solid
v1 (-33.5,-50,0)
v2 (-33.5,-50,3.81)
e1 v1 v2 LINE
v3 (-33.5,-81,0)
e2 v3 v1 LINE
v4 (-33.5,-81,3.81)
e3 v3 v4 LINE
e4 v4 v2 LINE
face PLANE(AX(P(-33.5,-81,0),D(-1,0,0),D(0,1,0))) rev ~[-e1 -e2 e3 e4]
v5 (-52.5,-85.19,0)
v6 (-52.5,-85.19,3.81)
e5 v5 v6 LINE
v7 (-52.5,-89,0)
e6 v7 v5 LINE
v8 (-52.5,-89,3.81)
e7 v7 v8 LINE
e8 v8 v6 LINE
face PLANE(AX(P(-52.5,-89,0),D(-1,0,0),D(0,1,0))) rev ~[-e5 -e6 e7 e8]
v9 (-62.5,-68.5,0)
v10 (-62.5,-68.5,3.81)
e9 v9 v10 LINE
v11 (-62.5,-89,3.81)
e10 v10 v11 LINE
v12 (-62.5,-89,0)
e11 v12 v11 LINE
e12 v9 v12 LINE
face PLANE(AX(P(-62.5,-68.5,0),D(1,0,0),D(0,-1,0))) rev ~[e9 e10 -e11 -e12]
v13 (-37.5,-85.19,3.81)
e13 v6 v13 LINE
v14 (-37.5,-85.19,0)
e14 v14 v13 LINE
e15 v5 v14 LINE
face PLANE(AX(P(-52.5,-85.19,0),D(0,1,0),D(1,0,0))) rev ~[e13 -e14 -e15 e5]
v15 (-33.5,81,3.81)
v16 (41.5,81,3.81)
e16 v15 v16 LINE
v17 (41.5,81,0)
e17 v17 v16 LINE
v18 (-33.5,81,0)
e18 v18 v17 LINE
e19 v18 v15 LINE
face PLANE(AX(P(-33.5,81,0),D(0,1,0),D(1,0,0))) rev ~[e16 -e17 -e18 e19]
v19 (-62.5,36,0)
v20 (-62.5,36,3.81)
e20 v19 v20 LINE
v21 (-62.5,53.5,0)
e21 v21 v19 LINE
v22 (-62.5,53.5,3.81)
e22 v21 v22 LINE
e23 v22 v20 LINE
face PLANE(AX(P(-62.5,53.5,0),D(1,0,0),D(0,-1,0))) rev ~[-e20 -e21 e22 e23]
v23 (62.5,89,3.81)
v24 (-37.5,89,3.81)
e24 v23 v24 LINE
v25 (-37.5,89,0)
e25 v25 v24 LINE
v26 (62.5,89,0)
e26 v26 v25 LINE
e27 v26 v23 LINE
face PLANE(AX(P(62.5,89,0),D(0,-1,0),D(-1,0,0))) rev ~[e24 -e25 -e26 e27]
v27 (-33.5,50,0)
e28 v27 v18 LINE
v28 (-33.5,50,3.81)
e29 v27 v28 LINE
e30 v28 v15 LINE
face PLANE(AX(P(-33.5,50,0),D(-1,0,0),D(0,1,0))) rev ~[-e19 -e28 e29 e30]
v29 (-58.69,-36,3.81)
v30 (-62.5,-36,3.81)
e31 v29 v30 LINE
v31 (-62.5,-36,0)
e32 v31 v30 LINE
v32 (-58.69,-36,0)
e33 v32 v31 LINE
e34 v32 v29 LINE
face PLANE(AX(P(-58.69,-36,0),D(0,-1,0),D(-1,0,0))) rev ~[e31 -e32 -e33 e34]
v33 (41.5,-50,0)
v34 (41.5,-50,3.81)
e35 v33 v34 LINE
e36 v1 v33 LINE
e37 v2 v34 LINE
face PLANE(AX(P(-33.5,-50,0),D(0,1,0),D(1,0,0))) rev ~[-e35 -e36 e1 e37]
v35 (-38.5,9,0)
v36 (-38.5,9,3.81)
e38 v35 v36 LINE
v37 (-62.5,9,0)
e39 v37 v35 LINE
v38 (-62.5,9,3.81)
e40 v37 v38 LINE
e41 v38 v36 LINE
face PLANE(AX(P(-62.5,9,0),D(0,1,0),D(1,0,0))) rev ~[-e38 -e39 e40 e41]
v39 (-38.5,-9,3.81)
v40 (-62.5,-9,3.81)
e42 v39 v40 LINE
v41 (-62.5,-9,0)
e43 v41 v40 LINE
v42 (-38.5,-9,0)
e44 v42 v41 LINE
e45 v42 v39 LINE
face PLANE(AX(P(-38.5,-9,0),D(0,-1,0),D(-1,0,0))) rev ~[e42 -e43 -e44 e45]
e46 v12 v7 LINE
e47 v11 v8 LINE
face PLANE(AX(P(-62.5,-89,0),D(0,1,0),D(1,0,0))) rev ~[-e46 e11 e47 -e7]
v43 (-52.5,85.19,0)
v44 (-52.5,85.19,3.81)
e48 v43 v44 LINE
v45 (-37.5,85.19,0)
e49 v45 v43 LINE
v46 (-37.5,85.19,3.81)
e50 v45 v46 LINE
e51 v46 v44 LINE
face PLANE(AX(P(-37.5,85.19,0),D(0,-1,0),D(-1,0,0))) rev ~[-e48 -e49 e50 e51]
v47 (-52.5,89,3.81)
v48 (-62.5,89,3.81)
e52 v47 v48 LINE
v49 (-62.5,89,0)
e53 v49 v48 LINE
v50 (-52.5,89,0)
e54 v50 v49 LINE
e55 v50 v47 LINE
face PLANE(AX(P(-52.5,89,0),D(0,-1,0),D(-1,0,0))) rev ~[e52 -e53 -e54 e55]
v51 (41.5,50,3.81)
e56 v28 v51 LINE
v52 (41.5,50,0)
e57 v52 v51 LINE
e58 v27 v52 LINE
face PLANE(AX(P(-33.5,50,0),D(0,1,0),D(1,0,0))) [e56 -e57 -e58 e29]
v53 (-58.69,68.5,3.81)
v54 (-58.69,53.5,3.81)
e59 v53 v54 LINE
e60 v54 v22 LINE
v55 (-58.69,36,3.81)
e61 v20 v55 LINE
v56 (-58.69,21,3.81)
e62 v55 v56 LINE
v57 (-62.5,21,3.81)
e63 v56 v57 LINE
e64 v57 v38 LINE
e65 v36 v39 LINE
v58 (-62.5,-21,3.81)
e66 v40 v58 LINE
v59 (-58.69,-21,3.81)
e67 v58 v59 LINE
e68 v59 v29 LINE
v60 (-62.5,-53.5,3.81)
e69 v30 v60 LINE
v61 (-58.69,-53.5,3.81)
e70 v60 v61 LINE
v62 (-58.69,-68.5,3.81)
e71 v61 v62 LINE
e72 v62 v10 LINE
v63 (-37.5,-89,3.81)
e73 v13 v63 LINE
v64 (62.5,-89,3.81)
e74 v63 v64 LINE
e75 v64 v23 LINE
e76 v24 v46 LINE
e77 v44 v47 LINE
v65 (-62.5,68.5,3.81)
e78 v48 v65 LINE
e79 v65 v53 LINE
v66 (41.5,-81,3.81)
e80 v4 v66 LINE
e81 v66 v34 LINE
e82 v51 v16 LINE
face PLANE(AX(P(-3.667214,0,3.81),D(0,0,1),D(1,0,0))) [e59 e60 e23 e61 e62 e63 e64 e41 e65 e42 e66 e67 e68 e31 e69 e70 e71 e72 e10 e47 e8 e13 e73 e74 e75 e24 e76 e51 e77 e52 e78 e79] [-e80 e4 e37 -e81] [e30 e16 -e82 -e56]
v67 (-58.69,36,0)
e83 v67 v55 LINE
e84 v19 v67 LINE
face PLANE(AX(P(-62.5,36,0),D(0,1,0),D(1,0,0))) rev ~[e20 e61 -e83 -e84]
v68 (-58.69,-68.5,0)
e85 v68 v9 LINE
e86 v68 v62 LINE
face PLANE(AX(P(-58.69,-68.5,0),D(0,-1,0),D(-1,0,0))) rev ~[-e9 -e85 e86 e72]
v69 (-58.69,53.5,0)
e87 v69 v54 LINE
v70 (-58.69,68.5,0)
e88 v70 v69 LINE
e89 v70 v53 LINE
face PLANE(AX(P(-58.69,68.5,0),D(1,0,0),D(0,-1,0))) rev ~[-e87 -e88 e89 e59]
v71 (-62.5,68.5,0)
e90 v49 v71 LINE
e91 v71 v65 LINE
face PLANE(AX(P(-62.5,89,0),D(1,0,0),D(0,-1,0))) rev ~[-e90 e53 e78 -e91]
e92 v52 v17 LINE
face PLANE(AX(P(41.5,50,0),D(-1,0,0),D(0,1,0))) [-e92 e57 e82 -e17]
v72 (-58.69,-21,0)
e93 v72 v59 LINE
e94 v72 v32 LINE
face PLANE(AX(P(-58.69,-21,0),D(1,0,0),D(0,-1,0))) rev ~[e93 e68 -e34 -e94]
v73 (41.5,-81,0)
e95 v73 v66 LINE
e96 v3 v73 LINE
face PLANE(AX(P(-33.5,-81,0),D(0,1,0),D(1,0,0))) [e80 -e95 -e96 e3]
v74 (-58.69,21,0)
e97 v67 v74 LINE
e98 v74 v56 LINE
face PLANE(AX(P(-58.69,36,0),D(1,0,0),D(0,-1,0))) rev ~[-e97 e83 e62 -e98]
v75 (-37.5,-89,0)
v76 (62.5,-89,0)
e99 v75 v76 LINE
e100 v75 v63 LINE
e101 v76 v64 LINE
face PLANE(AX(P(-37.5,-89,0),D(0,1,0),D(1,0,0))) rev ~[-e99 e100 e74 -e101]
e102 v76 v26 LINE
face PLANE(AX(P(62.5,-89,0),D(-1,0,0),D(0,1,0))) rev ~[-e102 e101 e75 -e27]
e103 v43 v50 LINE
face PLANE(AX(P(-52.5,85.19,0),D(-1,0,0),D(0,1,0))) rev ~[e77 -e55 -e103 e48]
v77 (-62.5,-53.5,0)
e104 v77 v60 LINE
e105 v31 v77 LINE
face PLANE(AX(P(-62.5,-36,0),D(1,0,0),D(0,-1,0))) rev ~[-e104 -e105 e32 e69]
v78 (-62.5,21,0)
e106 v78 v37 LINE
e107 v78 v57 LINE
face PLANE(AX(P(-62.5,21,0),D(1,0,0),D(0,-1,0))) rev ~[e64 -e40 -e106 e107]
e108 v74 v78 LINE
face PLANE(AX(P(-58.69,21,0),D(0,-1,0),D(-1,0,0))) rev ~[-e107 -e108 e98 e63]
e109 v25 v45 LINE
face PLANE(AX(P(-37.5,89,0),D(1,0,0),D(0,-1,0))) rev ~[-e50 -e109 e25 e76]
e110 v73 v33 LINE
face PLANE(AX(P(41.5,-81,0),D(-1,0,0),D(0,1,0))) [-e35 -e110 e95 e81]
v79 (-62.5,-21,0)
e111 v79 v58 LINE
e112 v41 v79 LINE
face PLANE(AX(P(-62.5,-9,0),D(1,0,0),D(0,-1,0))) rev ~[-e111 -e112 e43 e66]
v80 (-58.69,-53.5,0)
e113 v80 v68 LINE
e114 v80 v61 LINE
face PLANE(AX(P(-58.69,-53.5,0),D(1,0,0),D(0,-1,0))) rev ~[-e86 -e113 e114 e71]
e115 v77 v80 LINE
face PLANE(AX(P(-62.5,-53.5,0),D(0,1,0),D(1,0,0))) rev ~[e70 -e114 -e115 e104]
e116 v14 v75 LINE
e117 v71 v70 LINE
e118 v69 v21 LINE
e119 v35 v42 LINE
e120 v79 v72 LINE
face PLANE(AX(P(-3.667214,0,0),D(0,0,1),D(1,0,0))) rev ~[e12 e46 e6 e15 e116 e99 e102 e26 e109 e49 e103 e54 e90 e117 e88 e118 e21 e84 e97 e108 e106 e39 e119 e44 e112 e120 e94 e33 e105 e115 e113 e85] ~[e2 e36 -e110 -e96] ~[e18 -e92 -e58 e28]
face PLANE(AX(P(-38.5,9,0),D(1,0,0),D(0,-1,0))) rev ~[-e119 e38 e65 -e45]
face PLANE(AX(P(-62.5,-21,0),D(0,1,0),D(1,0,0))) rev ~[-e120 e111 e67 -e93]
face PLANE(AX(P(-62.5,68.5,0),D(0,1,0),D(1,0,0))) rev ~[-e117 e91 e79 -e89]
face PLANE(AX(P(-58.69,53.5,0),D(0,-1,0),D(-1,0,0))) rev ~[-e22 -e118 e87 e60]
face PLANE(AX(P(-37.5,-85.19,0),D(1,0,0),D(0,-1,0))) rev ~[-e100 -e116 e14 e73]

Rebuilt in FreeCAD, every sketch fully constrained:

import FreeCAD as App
import Part
import Sketcher
Q = App.Units.Quantity


def add_polygon(sketch, points):
    """Adds a closed chain of lines whose ends are joined by coincident constraints."""
    first, n = sketch.GeometryCount, len(points)
    for a, b in zip(points, points[1:] + points[:1]):
        sketch.addGeometry(Part.LineSegment(App.Vector(*a, 0), App.Vector(*b, 0)), False)
    for i in range(n):
        sketch.addConstraint(Sketcher.Constraint("Coincident", first + i, 2, first + (i + 1) % n, 1))

doc = App.newDocument("Part")
params = doc.addObject("Spreadsheet::Sheet", "Params")
for row, (alias, value) in enumerate([
    ("sketch1_width", "100 mm"),
    ("sketch1_width2", "15 mm"),
    ("sketch1_width3", "10 mm"),
    ("sketch1_width4", "24 mm"),
    ("sketch1_width5", "75 mm"),
    ("pad1_length", "3.81 mm"),
], start=1):
    params.set(f"A{row}", alias)
    params.set(f"B{row}", "=" + value)
    params.setAlias(f"B{row}", alias)

body = doc.addObject("PartDesign::Body", "Body")

sketch1 = body.newObject("Sketcher::SketchObject", "Sketch")
sketch1.AttachmentSupport = (doc.getObject("XY_Plane"), [""])
sketch1.MapMode = "FlatFace"
add_polygon(sketch1, [(62.5, 89), (-37.5, 89), (-37.5, 85.2), (-52.5, 85.2), (-52.5, 89), (-62.5, 89), (-62.5, 68.5), (-58.7, 68.5), (-58.7, 53.5), (-62.5, 53.5), (-62.5, 36), (-58.7, 36), (-58.7, 21), (-62.5, 21), (-62.5, 9), (-38.5, 9), (-38.5, -9), (-62.5, -9), (-62.5, -21), (-58.7, -21), (-58.7, -36), (-62.5, -36), (-62.5, -53.5), (-58.7, -53.5), (-58.7, -68.5), (-62.5, -68.5), (-62.5, -89), (-52.5, -89), (-52.5, -85.2), (-37.5, -85.2), (-37.5, -89), (62.5, -89)])
add_polygon(sketch1, [(41.5, -81), (-33.5, -81), (-33.5, -50), (41.5, -50)])
add_polygon(sketch1, [(41.5, 50), (-33.5, 50), (-33.5, 81), (41.5, 81)])
sketch1.addConstraint([
    Sketcher.Constraint("Horizontal", 0),
    Sketcher.Constraint("Vertical", 1),
    Sketcher.Constraint("Horizontal", 2),
    Sketcher.Constraint("Vertical", 3),
    Sketcher.Constraint("Horizontal", 4),
    Sketcher.Constraint("Vertical", 5),
    Sketcher.Constraint("Horizontal", 6),
    Sketcher.Constraint("Vertical", 7),
    Sketcher.Constraint("Horizontal", 8),
    Sketcher.Constraint("Vertical", 9),
    Sketcher.Constraint("Horizontal", 10),
    Sketcher.Constraint("Vertical", 11),
    Sketcher.Constraint("Horizontal", 12),
    Sketcher.Constraint("Vertical", 13),
    Sketcher.Constraint("Horizontal", 14),
    Sketcher.Constraint("Vertical", 15),
    Sketcher.Constraint("Horizontal", 16),
    Sketcher.Constraint("Vertical", 17),
    Sketcher.Constraint("Horizontal", 18),
    Sketcher.Constraint("Vertical", 19),
    Sketcher.Constraint("Horizontal", 20),
    Sketcher.Constraint("Vertical", 21),
    Sketcher.Constraint("Horizontal", 22),
    Sketcher.Constraint("Vertical", 23),
    Sketcher.Constraint("Horizontal", 24),
    Sketcher.Constraint("Vertical", 25),
    Sketcher.Constraint("Horizontal", 26),
    Sketcher.Constraint("Vertical", 27),
    Sketcher.Constraint("Horizontal", 28),
    Sketcher.Constraint("Vertical", 29),
    Sketcher.Constraint("Horizontal", 30),
    Sketcher.Constraint("Vertical", 31),
    Sketcher.Constraint("Horizontal", 32),
    Sketcher.Constraint("Vertical", 33),
    Sketcher.Constraint("Horizontal", 34),
    Sketcher.Constraint("Vertical", 35),
    Sketcher.Constraint("Horizontal", 36),
    Sketcher.Constraint("Vertical", 37),
    Sketcher.Constraint("Horizontal", 38),
    Sketcher.Constraint("Vertical", 39),
    Sketcher.Constraint("Symmetric", 4, 2, 30, 2, -1, 1),
    Sketcher.Constraint("Symmetric", 25, 2, 31, 2, -1, 1),
    Sketcher.Constraint("Symmetric", 13, 2, 16, 2, -1),
    Sketcher.Constraint("Symmetric", 11, 2, 18, 2, -1),
    Sketcher.Constraint("Symmetric", 9, 2, 20, 2, -1),
    Sketcher.Constraint("Symmetric", 7, 2, 22, 2, -1),
    Sketcher.Constraint("Symmetric", 3, 2, 26, 2, -1),
    Sketcher.Constraint("Symmetric", 1, 2, 28, 2, -1),
    Sketcher.Constraint("Symmetric", 33, 2, 36, 2, -1),
    Sketcher.Constraint("Symmetric", 35, 2, 38, 2, -1),
    Sketcher.Constraint("Vertical", 5, 2, 8, 2),
    Sketcher.Constraint("Vertical", 7, 2, 10, 2),
    Sketcher.Constraint("Vertical", 9, 2, 12, 2),
    Sketcher.Constraint("Equal", 24, 1),
    Sketcher.Constraint("Equal", 28, 7),
    Sketcher.Constraint("Equal", 7, 11),
    Sketcher.Constraint("Equal", 19, 23),
    Sketcher.Constraint("DistanceX", 0, 2, 0, 1, Q("100 mm")),
    Sketcher.Constraint("DistanceX", 2, 2, 2, 1, Q("15 mm")),
    Sketcher.Constraint("DistanceX", 4, 2, 4, 1, Q("10 mm")),
    Sketcher.Constraint("DistanceX", 14, 1, 14, 2, Q("24 mm")),
    Sketcher.Constraint("DistanceX", 32, 2, 32, 1, Q("75 mm")),
    Sketcher.Constraint("DistanceY", 13, 2, 13, 1, Q("12 mm")),
    Sketcher.Constraint("DistanceY", 15, 2, 15, 1, Q("18 mm")),
    Sketcher.Constraint("DistanceY", 31, 1, 31, 2, Q("178 mm")),
    Sketcher.Constraint("DistanceY", 33, 1, 33, 2, Q("31 mm")),
    Sketcher.Constraint("DistanceY", 5, 2, 5, 1, Q("20.5 mm")),
    Sketcher.Constraint("DistanceY", 32, 2, -1, 1, Q("81 mm")),
    Sketcher.Constraint("DistanceX", 28, 2, 32, 2, Q("4 mm")),
    Sketcher.Constraint("DistanceX", 6, 1, 6, 2, Q("3.81 mm")),
])
sketch1.setExpression("Constraints[97]", "Params.sketch1_width")
sketch1.setExpression("Constraints[98]", "Params.sketch1_width2")
sketch1.setExpression("Constraints[99]", "Params.sketch1_width3")
sketch1.setExpression("Constraints[100]", "Params.sketch1_width4")
sketch1.setExpression("Constraints[101]", "Params.sketch1_width5")
pad1 = body.newObject("PartDesign::Pad", "Pad")
pad1.Profile = sketch1
pad1.setExpression("Length", "Params.pad1_length")

doc.recompute()
